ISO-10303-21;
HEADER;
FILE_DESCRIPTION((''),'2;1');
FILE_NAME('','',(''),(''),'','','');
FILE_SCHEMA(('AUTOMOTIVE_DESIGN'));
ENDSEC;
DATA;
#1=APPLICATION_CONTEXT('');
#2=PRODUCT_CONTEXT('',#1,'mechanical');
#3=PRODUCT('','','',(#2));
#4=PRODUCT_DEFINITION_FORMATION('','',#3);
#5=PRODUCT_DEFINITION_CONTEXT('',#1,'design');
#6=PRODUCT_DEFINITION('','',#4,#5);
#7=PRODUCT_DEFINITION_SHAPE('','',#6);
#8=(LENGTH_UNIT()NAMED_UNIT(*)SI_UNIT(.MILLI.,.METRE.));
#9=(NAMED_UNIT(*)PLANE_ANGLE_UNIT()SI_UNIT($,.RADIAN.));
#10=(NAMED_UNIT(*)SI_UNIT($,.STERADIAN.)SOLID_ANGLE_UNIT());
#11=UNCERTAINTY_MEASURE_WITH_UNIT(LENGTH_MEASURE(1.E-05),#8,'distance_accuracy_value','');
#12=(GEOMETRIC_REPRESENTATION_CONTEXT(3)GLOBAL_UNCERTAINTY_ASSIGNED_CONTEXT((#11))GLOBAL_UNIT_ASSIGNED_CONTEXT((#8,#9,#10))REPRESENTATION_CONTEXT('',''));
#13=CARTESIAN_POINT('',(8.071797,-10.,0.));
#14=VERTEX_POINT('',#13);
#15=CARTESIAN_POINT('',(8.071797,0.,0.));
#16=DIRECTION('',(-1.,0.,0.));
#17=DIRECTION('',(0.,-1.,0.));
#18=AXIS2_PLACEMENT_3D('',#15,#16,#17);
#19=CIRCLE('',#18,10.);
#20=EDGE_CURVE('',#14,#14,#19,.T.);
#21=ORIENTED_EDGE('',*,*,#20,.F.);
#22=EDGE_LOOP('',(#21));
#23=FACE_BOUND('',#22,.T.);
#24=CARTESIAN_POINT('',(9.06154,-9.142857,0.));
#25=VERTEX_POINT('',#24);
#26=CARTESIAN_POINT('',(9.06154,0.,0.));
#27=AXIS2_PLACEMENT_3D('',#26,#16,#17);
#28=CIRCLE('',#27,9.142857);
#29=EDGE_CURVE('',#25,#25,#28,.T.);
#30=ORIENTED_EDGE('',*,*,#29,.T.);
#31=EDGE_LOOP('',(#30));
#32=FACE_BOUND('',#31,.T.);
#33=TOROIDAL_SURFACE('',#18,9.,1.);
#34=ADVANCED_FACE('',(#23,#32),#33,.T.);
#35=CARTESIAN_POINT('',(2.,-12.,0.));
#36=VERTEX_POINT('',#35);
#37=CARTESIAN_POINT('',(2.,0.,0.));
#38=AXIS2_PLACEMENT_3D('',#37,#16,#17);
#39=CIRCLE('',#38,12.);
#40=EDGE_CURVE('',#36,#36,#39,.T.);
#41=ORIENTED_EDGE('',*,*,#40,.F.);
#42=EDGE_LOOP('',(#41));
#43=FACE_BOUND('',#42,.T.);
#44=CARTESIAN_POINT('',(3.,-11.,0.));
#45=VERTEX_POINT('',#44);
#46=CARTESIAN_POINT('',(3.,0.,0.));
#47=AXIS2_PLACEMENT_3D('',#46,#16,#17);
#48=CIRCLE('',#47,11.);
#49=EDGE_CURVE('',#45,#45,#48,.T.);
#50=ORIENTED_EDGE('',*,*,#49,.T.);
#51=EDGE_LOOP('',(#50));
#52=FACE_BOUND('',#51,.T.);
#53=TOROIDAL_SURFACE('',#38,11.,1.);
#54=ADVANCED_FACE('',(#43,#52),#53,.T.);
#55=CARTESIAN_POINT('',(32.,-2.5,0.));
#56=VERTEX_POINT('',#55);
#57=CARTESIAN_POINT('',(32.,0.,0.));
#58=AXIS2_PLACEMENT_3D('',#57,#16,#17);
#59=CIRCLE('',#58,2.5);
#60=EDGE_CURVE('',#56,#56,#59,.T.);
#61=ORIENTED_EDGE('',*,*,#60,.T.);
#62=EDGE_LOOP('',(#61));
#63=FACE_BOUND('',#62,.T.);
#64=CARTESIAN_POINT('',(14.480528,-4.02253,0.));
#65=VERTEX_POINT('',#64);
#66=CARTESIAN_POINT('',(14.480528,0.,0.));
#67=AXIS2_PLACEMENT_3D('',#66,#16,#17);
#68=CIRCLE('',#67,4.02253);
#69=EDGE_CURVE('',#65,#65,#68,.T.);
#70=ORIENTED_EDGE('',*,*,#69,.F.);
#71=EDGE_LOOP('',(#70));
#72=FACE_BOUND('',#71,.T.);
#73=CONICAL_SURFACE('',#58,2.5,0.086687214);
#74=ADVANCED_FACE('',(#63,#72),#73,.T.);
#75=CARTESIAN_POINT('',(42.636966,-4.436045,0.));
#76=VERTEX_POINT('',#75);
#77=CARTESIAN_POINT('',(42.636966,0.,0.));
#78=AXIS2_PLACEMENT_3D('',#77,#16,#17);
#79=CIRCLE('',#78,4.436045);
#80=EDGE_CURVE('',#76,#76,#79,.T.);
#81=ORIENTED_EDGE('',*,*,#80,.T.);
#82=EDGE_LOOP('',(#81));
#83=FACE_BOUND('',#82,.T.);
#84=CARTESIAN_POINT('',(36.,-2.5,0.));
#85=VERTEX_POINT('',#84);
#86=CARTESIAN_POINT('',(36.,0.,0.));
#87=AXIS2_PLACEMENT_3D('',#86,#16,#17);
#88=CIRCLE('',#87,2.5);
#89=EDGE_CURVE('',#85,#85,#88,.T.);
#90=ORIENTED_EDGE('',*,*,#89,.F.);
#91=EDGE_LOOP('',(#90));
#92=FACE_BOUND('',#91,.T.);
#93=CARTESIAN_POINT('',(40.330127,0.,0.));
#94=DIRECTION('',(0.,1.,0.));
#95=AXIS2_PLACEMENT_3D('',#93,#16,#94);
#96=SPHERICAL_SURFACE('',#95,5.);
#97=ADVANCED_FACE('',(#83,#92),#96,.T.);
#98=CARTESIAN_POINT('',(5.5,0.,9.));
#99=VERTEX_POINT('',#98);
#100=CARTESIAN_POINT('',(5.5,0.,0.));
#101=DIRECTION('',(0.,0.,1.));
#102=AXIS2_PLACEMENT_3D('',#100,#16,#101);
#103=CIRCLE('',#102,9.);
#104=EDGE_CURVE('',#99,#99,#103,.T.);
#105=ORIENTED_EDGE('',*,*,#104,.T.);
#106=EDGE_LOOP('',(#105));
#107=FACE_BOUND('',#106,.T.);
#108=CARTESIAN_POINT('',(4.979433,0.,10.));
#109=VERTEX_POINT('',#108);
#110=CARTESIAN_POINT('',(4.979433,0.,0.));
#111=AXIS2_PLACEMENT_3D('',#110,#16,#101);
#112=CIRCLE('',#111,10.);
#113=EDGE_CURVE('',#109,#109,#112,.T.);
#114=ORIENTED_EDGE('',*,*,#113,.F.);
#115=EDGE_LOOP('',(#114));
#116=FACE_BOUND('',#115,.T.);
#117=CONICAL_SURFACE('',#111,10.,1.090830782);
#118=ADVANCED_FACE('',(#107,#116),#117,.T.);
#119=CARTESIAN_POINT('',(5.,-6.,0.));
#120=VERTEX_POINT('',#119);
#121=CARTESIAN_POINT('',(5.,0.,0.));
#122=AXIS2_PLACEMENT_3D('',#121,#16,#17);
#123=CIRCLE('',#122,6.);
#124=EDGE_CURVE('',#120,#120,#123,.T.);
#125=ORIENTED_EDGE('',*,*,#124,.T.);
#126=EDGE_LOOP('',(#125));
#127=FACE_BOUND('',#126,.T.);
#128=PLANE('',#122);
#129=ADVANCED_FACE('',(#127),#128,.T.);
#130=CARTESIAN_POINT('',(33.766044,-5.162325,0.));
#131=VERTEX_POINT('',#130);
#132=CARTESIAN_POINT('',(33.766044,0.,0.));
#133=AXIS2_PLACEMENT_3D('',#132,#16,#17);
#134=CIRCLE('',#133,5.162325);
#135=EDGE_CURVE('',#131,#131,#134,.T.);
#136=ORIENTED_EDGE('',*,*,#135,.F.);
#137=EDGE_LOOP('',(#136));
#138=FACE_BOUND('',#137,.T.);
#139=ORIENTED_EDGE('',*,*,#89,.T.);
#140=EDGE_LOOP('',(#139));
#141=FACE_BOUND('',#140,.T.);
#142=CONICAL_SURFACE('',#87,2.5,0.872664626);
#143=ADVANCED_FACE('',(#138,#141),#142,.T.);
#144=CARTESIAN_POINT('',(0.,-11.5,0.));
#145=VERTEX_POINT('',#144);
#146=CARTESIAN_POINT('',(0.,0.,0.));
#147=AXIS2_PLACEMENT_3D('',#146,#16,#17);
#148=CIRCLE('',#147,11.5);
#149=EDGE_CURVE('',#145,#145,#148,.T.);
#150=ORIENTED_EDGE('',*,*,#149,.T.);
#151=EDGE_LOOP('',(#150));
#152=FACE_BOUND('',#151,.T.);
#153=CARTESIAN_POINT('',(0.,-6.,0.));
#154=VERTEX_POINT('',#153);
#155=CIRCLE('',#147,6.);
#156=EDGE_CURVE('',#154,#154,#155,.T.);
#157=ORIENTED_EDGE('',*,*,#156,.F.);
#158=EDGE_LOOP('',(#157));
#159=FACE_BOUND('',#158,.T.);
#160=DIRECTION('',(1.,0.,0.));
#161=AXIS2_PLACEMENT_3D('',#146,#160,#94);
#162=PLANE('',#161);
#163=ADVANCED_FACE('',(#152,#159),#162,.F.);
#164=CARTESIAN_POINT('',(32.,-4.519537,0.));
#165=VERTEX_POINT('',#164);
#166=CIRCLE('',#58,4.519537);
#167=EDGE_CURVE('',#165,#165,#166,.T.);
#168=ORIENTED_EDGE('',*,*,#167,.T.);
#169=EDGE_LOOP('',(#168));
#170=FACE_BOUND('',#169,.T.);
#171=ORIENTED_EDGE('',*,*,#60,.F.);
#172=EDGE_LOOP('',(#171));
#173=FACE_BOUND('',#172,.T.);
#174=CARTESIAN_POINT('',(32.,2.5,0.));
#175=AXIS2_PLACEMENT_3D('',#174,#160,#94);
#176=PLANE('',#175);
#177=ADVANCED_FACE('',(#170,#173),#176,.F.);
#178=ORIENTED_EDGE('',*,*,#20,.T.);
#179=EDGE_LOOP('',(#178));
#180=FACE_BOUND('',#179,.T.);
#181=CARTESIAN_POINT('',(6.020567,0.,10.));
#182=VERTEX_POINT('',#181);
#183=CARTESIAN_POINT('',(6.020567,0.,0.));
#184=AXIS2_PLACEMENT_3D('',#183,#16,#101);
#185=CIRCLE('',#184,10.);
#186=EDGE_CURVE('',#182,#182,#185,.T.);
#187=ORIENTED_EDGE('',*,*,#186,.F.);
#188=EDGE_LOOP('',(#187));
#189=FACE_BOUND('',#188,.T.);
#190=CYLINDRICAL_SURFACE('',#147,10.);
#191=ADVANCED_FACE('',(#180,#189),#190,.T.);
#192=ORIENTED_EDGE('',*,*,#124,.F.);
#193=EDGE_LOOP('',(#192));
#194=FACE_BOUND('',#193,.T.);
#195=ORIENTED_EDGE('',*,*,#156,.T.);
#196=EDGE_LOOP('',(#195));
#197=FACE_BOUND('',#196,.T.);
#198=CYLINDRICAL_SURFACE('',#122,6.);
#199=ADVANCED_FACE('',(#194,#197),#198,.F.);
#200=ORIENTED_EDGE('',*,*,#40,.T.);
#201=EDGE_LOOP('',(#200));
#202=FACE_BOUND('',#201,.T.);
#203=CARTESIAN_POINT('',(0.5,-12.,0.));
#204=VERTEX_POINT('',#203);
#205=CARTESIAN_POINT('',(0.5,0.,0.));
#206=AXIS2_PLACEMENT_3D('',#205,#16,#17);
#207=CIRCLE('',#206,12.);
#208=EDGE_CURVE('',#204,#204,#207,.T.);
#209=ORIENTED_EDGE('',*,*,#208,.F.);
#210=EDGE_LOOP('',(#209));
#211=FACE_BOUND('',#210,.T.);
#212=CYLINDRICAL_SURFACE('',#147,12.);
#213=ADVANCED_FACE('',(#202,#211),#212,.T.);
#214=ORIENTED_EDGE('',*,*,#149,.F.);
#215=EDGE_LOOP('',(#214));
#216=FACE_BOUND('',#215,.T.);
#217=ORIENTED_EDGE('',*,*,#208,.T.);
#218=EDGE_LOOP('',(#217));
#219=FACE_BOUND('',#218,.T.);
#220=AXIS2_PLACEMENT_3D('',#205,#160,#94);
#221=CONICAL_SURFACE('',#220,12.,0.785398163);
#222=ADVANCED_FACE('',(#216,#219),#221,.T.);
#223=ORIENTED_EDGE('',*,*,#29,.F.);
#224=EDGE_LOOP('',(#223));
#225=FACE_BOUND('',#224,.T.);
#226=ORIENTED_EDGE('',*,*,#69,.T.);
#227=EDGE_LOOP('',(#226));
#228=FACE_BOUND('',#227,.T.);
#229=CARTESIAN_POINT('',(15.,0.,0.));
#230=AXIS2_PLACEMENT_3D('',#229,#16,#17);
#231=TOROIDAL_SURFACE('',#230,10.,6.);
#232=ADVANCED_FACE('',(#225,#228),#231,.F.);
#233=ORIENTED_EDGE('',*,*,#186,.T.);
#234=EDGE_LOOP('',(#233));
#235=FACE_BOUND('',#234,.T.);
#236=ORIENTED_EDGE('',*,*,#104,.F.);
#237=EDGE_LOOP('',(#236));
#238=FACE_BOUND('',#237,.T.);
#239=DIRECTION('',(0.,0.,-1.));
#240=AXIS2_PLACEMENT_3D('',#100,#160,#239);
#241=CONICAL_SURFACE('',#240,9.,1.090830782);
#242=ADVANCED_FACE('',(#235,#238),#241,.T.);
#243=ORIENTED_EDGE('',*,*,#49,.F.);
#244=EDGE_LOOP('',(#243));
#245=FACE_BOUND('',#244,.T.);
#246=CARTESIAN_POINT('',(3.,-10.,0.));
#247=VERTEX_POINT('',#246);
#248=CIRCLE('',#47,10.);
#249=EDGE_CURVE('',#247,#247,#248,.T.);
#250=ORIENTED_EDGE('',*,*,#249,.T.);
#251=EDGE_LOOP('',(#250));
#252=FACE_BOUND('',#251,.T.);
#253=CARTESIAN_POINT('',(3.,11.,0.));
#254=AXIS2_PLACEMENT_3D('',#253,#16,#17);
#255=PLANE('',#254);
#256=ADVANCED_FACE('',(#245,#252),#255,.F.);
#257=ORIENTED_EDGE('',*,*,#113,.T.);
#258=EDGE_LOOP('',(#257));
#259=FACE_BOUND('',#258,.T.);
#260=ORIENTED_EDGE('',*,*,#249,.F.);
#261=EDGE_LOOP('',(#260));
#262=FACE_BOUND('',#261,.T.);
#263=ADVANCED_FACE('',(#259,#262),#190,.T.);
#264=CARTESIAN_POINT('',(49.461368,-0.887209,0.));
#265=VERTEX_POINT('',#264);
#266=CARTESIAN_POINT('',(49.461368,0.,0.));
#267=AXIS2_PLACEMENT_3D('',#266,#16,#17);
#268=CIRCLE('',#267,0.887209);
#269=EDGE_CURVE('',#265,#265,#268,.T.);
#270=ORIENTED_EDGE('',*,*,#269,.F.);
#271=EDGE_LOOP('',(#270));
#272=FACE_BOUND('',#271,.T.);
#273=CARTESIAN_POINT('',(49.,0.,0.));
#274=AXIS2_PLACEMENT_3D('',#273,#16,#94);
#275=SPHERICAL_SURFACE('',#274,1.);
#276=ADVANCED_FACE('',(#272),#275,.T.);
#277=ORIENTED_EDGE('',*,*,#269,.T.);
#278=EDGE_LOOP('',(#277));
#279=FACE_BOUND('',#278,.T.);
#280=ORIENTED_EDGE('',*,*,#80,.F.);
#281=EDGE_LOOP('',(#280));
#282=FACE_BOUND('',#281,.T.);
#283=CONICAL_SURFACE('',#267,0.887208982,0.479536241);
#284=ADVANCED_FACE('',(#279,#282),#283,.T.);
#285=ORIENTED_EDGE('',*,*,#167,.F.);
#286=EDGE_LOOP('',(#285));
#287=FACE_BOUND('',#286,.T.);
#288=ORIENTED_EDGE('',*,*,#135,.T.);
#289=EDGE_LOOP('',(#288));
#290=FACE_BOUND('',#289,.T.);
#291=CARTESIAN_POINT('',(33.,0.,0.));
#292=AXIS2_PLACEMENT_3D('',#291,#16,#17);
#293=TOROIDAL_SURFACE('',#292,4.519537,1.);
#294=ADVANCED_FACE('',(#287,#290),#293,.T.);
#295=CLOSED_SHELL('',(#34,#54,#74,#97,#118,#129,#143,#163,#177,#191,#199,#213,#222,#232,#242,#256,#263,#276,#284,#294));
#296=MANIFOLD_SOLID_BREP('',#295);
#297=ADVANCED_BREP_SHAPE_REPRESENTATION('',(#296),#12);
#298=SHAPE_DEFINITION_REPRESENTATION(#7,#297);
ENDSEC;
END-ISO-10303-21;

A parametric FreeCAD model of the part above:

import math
import FreeCAD as App
import Part
import Sketcher
Q = App.Units.Quantity

doc = App.newDocument("Part")
body = doc.addObject("PartDesign::Body", "Body")

# Sketch on XY plane
sketch1 = body.newObject("Sketcher::SketchObject", "Sketch")
sketch1.AttachmentSupport = (doc.getObject("XY_Plane"), [""])
sketch1.MapMode = "FlatFace"
sketch1.addGeometry(Part.LineSegment(App.Vector(0, 11.5, 0), App.Vector(0, 0, 0)), False)
sketch1.addGeometry(Part.LineSegment(App.Vector(0, 0, 0), App.Vector(50, 0, 0)), False)
sketch1.addGeometry(Part.ArcOfCircle(Part.Circle(App.Vector(49, 0, 0), App.Vector(0, 0, 1), 1), math.radians(0), math.radians(62.524597)), False)
sketch1.addGeometry(Part.LineSegment(App.Vector(49.461368, 0.887209, 0), App.Vector(42.636966, 4.436045, 0)), False)
sketch1.addGeometry(Part.ArcOfCircle(Part.Circle(App.Vector(40.330127, 0, 0), App.Vector(0, 0, 1), 5), math.radians(62.524597), math.radians(150)), False)
sketch1.addGeometry(Part.LineSegment(App.Vector(36, 2.5, 0), App.Vector(33.766044, 5.162325, 0)), False)
sketch1.addGeometry(Part.ArcOfCircle(Part.Circle(App.Vector(33, 4.519537, 0), App.Vector(0, 0, 1), 1), math.radians(40), math.radians(180)), False)
sketch1.addGeometry(Part.LineSegment(App.Vector(32, 4.519537, 0), App.Vector(32, 2.5, 0)), False)
sketch1.addGeometry(Part.LineSegment(App.Vector(32, 2.5, 0), App.Vector(14.480528, 4.02253, 0)), False)
sketch1.addGeometry(Part.ArcOfCircle(Part.Circle(App.Vector(15, 10, 0), App.Vector(0, 0, 1), 6), math.radians(-171.786789), math.radians(-94.966811)), False)
sketch1.addGeometry(Part.ArcOfCircle(Part.Circle(App.Vector(8.071797, 9, 0), App.Vector(0, 0, 1), 1), math.radians(8.213211), math.radians(90)), False)
sketch1.addGeometry(Part.LineSegment(App.Vector(8.071797, 10, 0), App.Vector(3, 10, 0)), False)
sketch1.addGeometry(Part.LineSegment(App.Vector(3, 10, 0), App.Vector(3, 11, 0)), False)
sketch1.addGeometry(Part.ArcOfCircle(Part.Circle(App.Vector(2, 11, 0), App.Vector(0, 0, 1), 1), math.radians(0), math.radians(90)), False)
sketch1.addGeometry(Part.LineSegment(App.Vector(2, 12, 0), App.Vector(0.5, 12, 0)), False)
sketch1.addGeometry(Part.LineSegment(App.Vector(0.5, 12, 0), App.Vector(0, 11.5, 0)), False)
sketch1.addConstraint(Sketcher.Constraint("Coincident", 0, 2, 1, 1))
sketch1.addConstraint(Sketcher.Constraint("Coincident", 1, 2, 2, 1))
sketch1.addConstraint(Sketcher.Constraint("Tangent", 2, 2, 3, 1))
sketch1.addConstraint(Sketcher.Constraint("Tangent", 3, 2, 4, 1))
sketch1.addConstraint(Sketcher.Constraint("Coincident", 4, 2, 5, 1))
sketch1.addConstraint(Sketcher.Constraint("Tangent", 5, 2, 6, 1))
sketch1.addConstraint(Sketcher.Constraint("Tangent", 6, 2, 7, 1))
sketch1.addConstraint(Sketcher.Constraint("Coincident", 7, 2, 8, 1))
sketch1.addConstraint(Sketcher.Constraint("Tangent", 8, 2, 9, 2))
sketch1.addConstraint(Sketcher.Constraint("Tangent", 9, 1, 10, 1))
sketch1.addConstraint(Sketcher.Constraint("Tangent", 10, 2, 11, 1))
sketch1.addConstraint(Sketcher.Constraint("Coincident", 11, 2, 12, 1))
sketch1.addConstraint(Sketcher.Constraint("Tangent", 12, 2, 13, 1))
sketch1.addConstraint(Sketcher.Constraint("Tangent", 13, 2, 14, 1))
sketch1.addConstraint(Sketcher.Constraint("Coincident", 14, 2, 15, 1))
sketch1.addConstraint(Sketcher.Constraint("Coincident", 15, 2, 0, 1))
sketch1.addConstraint(Sketcher.Constraint("Vertical", 0))
sketch1.addConstraint(Sketcher.Constraint("Horizontal", 1))
sketch1.addConstraint(Sketcher.Constraint("Vertical", 7))
sketch1.addConstraint(Sketcher.Constraint("Horizontal", 11))
sketch1.addConstraint(Sketcher.Constraint("Vertical", 12))
sketch1.addConstraint(Sketcher.Constraint("Horizontal", 14))
sketch1.addConstraint(Sketcher.Constraint("Coincident", 0, 2, -1, 1))
sketch1.addConstraint(Sketcher.Constraint("Equal", 2, 6))
sketch1.addConstraint(Sketcher.Constraint("Equal", 6, 10))
sketch1.addConstraint(Sketcher.Constraint("Equal", 10, 13))
sketch1.addConstraint(Sketcher.Constraint("PointOnObject", 2, 3, -1))
sketch1.addConstraint(Sketcher.Constraint("PointOnObject", 4, 3, -1))
sketch1.addConstraint(Sketcher.Constraint("Horizontal", 4, 2, 7, 2))
sketch1.addConstraint(Sketcher.Constraint("Horizontal", 9, 3, 10, 2))
sketch1.addConstraint(Sketcher.Constraint("Radius", 2, 1.0))
sketch1.addConstraint(Sketcher.Constraint("Radius", 4, 5.0))
sketch1.addConstraint(Sketcher.Constraint("Radius", 9, 6.0))
sketch1.addConstraint(Sketcher.Constraint("DistanceX", 1, 1, 1, 2, 50.0))
sketch1.addConstraint(Sketcher.Constraint("DistanceY", 12, 1, 12, 2, 1.0))
sketch1.addConstraint(Sketcher.Constraint("Angle", 5, Q("130 deg")))
sketch1.addConstraint(Sketcher.Constraint("Angle", 15, Q("-135 deg")))
sketch1.addConstraint(Sketcher.Constraint("DistanceX", 14, 2, 14, 1, 1.5))
sketch1.addConstraint(Sketcher.Constraint("DistanceY", 0, 2, 0, 1, 11.5))
sketch1.addConstraint(Sketcher.Constraint("DistanceX", -1, 1, 6, 3, 33.0))
sketch1.addConstraint(Sketcher.Constraint("DistanceX", -1, 1, 9, 3, 15.0))
sketch1.addConstraint(Sketcher.Constraint("DistanceY", -1, 1, 9, 3, 10.0))
sketch1.addConstraint(Sketcher.Constraint("DistanceX", -1, 1, 4, 2, 36.0))
sketch1.addConstraint(Sketcher.Constraint("DistanceY", -1, 1, 4, 2, 2.5))
revolution = body.newObject("PartDesign::Revolution", "Revolution")
revolution.Profile = sketch1
revolution.ReferenceAxis = (sketch1, ["H_Axis"])
revolution.Angle = 360

# Sketch on XY plane
sketch2 = body.newObject("Sketcher::SketchObject", "Sketch001")
sketch2.AttachmentSupport = (doc.getObject("XY_Plane"), [""])
sketch2.MapMode = "FlatFace"
sketch2.addGeometry(Part.LineSegment(App.Vector(4.979433, 10, 0), App.Vector(5.5, 9, 0)), False)
sketch2.addGeometry(Part.LineSegment(App.Vector(5.5, 9, 0), App.Vector(6.020567, 10, 0)), False)
sketch2.addGeometry(Part.LineSegment(App.Vector(6.020567, 10, 0), App.Vector(4.979433, 10, 0)), False)
sketch2.addConstraint(Sketcher.Constraint("Coincident", 0, 2, 1, 1))
sketch2.addConstraint(Sketcher.Constraint("Coincident", 1, 2, 2, 1))
sketch2.addConstraint(Sketcher.Constraint("Coincident", 2, 2, 0, 1))
sketch2.addConstraint(Sketcher.Constraint("Horizontal", 2))
sketch2.addConstraint(Sketcher.Constraint("Equal", 0, 1))
sketch2.addConstraint(Sketcher.Constraint("DistanceY", -1, 1, 0, 2, 9.0))
sketch2.addConstraint(Sketcher.Constraint("DistanceY", -1, 1, 1, 2, 10.0))
sketch2.addConstraint(Sketcher.Constraint("Angle", 0, Q("-62.5 deg")))
sketch2.addConstraint(Sketcher.Constraint("DistanceX", -1, 1, 0, 2, 5.5))
groove = body.newObject("PartDesign::Groove", "Groove")
groove.Profile = sketch2
groove.ReferenceAxis = (sketch2, ["H_Axis"])
groove.Angle = 360

# Sketch on YZ plane
sketch3 = body.newObject("Sketcher::SketchObject", "Sketch002")
sketch3.AttachmentSupport = (doc.getObject("YZ_Plane"), [""])
sketch3.MapMode = "FlatFace"
sketch3.addGeometry(Part.Circle(App.Vector(0, 0, 0), App.Vector(0, 0, 1), 6), False)
sketch3.addConstraint(Sketcher.Constraint("Coincident", 0, 3, -1, 1))
sketch3.addConstraint(Sketcher.Constraint("Diameter", 0, 12.0))
pocket1 = body.newObject("PartDesign::Pocket", "Pocket")
pocket1.Profile = sketch3
pocket1.Length = 5
pocket1.Reversed = True

doc.recompute()
